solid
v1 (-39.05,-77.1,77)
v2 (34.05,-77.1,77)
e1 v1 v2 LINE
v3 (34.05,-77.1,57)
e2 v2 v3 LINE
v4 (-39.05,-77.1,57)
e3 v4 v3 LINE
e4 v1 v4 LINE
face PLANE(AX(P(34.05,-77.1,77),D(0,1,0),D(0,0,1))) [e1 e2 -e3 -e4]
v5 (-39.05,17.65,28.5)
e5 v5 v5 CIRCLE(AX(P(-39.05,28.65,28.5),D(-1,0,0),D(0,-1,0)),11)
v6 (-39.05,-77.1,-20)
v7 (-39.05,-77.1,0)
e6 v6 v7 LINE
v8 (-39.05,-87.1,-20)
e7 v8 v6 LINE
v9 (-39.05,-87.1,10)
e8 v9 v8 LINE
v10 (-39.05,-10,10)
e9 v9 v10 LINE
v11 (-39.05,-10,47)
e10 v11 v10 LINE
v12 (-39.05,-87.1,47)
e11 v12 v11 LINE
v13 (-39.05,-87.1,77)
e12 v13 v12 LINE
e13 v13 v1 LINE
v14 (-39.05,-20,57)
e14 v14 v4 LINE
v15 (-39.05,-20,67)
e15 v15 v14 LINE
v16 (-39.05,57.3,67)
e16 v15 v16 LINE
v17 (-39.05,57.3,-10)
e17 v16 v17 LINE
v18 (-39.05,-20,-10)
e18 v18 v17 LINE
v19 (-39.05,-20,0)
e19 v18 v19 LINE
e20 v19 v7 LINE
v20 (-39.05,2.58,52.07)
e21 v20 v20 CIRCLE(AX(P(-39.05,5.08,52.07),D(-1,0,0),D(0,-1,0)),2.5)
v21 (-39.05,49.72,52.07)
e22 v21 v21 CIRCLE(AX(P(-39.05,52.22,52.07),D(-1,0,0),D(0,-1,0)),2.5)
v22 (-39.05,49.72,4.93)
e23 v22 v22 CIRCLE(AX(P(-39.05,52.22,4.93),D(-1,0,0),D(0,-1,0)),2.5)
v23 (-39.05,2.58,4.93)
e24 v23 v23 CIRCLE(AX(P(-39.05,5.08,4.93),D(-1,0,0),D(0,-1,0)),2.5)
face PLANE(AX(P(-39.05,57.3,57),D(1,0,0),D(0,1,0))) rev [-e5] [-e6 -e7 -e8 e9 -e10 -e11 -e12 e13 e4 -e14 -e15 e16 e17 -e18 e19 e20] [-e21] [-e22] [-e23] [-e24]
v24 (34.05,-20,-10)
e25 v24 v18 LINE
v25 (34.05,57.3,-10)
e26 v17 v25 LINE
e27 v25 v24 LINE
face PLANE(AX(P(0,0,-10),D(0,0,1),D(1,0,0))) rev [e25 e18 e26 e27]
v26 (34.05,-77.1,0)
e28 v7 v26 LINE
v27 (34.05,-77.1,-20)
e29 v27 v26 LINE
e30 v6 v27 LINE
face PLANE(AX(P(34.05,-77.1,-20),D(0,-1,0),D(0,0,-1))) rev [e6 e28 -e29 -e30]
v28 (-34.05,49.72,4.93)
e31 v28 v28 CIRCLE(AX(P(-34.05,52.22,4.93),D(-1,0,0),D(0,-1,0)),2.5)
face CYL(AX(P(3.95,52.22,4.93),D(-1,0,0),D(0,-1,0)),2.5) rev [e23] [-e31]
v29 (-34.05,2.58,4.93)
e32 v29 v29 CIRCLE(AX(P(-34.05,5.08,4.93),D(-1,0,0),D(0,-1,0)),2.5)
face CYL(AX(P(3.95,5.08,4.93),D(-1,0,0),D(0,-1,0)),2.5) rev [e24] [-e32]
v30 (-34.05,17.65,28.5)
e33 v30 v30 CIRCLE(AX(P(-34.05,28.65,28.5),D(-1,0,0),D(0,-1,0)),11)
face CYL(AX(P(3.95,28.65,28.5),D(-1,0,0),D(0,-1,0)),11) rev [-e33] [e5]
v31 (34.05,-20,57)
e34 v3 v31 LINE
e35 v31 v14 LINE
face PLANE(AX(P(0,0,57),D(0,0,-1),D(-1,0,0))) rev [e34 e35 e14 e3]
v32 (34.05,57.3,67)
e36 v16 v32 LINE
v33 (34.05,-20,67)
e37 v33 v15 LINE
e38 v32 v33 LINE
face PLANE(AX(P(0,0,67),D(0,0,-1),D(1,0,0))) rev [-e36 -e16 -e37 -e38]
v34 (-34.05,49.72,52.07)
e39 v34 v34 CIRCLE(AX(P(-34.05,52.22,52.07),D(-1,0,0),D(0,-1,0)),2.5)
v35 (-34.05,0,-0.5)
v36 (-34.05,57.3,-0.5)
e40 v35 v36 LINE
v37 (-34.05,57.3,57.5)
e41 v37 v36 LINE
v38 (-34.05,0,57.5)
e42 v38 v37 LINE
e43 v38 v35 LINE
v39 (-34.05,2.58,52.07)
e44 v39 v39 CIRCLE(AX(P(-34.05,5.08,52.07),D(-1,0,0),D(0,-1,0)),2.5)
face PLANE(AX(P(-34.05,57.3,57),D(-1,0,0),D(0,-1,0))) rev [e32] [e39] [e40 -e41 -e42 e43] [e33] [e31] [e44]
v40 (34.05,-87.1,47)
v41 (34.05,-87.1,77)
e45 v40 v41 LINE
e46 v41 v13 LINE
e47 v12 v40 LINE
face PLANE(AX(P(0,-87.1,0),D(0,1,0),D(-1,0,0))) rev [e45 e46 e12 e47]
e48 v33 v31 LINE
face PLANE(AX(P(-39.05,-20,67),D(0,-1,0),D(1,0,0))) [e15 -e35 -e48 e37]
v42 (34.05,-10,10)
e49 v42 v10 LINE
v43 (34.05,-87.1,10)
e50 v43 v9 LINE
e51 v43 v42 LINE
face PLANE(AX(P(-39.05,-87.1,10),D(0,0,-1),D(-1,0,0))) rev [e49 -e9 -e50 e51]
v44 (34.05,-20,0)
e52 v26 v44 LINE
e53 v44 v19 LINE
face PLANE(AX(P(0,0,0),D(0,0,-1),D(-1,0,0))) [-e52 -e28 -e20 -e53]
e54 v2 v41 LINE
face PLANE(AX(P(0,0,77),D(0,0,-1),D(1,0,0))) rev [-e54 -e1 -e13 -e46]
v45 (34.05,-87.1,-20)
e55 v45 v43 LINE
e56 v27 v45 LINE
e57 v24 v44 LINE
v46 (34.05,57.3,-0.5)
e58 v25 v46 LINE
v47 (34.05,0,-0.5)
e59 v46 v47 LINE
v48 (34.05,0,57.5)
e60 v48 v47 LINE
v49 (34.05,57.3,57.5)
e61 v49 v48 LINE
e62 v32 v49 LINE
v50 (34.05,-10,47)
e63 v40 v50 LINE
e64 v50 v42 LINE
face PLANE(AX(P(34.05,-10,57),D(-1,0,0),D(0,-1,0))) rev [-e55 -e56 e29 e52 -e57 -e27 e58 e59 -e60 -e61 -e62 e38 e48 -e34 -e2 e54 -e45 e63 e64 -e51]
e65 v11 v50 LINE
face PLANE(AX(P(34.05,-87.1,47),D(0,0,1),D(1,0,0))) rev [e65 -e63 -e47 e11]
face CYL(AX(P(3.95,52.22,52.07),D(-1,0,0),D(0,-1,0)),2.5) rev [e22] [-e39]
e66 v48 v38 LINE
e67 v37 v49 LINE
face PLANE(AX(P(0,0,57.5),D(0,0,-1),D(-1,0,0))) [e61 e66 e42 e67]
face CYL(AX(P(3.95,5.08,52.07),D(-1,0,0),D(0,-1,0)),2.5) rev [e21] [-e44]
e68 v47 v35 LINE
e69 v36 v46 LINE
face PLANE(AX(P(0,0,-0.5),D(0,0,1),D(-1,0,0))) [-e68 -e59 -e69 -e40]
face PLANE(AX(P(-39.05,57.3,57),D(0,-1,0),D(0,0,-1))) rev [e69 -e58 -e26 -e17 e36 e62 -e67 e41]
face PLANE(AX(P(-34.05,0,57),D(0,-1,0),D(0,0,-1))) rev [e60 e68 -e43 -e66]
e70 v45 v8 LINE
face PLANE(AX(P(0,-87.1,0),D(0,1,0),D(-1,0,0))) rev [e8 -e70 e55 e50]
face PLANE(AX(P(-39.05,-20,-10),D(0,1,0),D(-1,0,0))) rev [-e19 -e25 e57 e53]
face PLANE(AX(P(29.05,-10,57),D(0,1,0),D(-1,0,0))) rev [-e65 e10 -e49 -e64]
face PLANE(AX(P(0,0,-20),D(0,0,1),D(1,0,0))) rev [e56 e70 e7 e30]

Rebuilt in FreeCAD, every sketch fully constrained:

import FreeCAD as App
import Part
import Sketcher
from FreeCAD import Vector
Q = App.Units.Quantity


def add_polygon(sketch, points):
    """Adds a closed chain of lines whose ends are joined by coincident constraints."""
    first, n = sketch.GeometryCount, len(points)
    for a, b in zip(points, points[1:] + points[:1]):
        sketch.addGeometry(Part.LineSegment(App.Vector(*a, 0), App.Vector(*b, 0)), False)
    for i in range(n):
        sketch.addConstraint(Sketcher.Constraint("Coincident", first + i, 2, first + (i + 1) % n, 1))

doc = App.newDocument("Part")
body = doc.addObject("PartDesign::Body", "Body")

sketch1 = body.newObject("Sketcher::SketchObject", "Sketch")
sketch1.AttachmentSupport = (doc.getObject("XY_Plane"), [""])
sketch1.MapMode = "FlatFace"
add_polygon(sketch1, [(34, 0), (-34, 0), (-34, 57), (-39, 57), (-39, -10), (34, -10)])
sketch1.addConstraint([
    Sketcher.Constraint("Horizontal", 0),
    Sketcher.Constraint("Vertical", 1),
    Sketcher.Constraint("Horizontal", 2),
    Sketcher.Constraint("Vertical", 3),
    Sketcher.Constraint("Horizontal", 4),
    Sketcher.Constraint("Vertical", 5),
    Sketcher.Constraint("Symmetric", 0, 2, 5, 2, -1, 1),
    Sketcher.Constraint("DistanceX", 2, 2, 2, 1, Q("5 mm")),
    Sketcher.Constraint("DistanceY", 5, 1, 5, 2, Q("10 mm")),
    Sketcher.Constraint("DistanceX", 0, 2, 0, 1, Q("68.1 mm")),
    Sketcher.Constraint("DistanceY", 1, 1, 1, 2, Q("57.3 mm")),
])
pad1 = body.newObject("PartDesign::Pad", "Pad")
pad1.Profile = sketch1
pad1.Length = 57

sketch2 = body.newObject("Sketcher::SketchObject", "Sketch001")
sketch2.AttachmentSupport = (doc.getObject("YZ_Plane"), [""])
sketch2.MapMode = "FlatFace"
sketch2.AttachmentOffset = App.Placement(Vector(0, 0, -39.05), App.Rotation())
sketch2.addGeometry([
    Part.Circle(Vector(28.6, 28.5, 0), Vector(0, 0, 1), 11),
    Part.Circle(Vector(52.2, 52.1, 0), Vector(0, 0, 1), 2.5),
    Part.Circle(Vector(52.2, 4.9, 0), Vector(0, 0, 1), 2.5),
    Part.Circle(Vector(5.1, 52.1, 0), Vector(0, 0, 1), 2.5),
    Part.Circle(Vector(5.1, 4.9, 0), Vector(0, 0, 1), 2.5),
], False)
sketch2.addConstraint([
    Sketcher.Constraint("Equal", 1, 2),
    Sketcher.Constraint("Equal", 2, 3),
    Sketcher.Constraint("Equal", 3, 4),
    Sketcher.Constraint("Horizontal", 1, 3, 3, 3),
    Sketcher.Constraint("Horizontal", 2, 3, 4, 3),
    Sketcher.Constraint("Vertical", 1, 3, 2, 3),
    Sketcher.Constraint("Vertical", 3, 3, 4, 3),
    Sketcher.Constraint("Diameter", 0, Q("22 mm")),
    Sketcher.Constraint("Diameter", 1, Q("5 mm")),
    Sketcher.Constraint("DistanceY", -1, 1, 0, 3, Q("28.5 mm")),
    Sketcher.Constraint("DistanceX", -1, 1, 0, 3, Q("28.65 mm")),
    Sketcher.Constraint("DistanceX", -1, 1, 1, 3, Q("52.22 mm")),
    Sketcher.Constraint("DistanceY", -1, 1, 1, 3, Q("52.07 mm")),
    Sketcher.Constraint("DistanceY", -1, 1, 2, 3, Q("4.93 mm")),
    Sketcher.Constraint("DistanceX", -1, 1, 3, 3, Q("5.08 mm")),
])
pocket1 = body.newObject("PartDesign::Pocket", "Pocket")
pocket1.Profile = sketch2
pocket1.Length = 43
pocket1.Reversed = True

sketch3 = body.newObject("Sketcher::SketchObject", "Sketch002")
sketch3.AttachmentSupport = (doc.getObject("XZ_Plane"), [""])
sketch3.MapMode = "FlatFace"
sketch3.AttachmentOffset = App.Placement(Vector(0, 0, 10), App.Rotation())
add_polygon(sketch3, [(-39, 10), (-39, 0), (34, 0), (34, 10)])
add_polygon(sketch3, [(-39, 57), (-39, 47), (34, 47), (34, 57)])
sketch3.addConstraint([
    Sketcher.Constraint("Vertical", 0),
    Sketcher.Constraint("Horizontal", 1),
    Sketcher.Constraint("Vertical", 2),
    Sketcher.Constraint("Horizontal", 3),
    Sketcher.Constraint("Vertical", 4),
    Sketcher.Constraint("Horizontal", 5),
    Sketcher.Constraint("Vertical", 6),
    Sketcher.Constraint("Horizontal", 7),
    Sketcher.Constraint("PointOnObject", 0, 2, -1),
    Sketcher.Constraint("Vertical", 3, 2, 4, 2),
    Sketcher.Constraint("Vertical", 2, 2, 5, 2),
    Sketcher.Constraint("Equal", 2, 4),
    Sketcher.Constraint("DistanceY", 0, 2, 0, 1, Q("10 mm")),
    Sketcher.Constraint("DistanceX", 1, 1, 1, 2, Q("73.1 mm")),
    Sketcher.Constraint("DistanceY", -1, 1, 4, 2, Q("47 mm")),
    Sketcher.Constraint("DistanceX", 0, 2, -1, 1, Q("39.05 mm")),
])
pad2 = body.newObject("PartDesign::Pad", "Pad001")
pad2.Profile = sketch3
pad2.Length = 77.1

sketch4 = body.newObject("Sketcher::SketchObject", "Sketch003")
sketch4.AttachmentSupport = (doc.getObject("XY_Plane"), [""])
sketch4.MapMode = "FlatFace"
add_polygon(sketch4, [(34, -77), (34, -87), (-39, -87), (-39, -77)])
sketch4.addConstraint([
    Sketcher.Constraint("Vertical", 0),
    Sketcher.Constraint("Horizontal", 1),
    Sketcher.Constraint("Vertical", 2),
    Sketcher.Constraint("Horizontal", 3),
    Sketcher.Constraint("DistanceY", 0, 2, 0, 1, Q("10 mm")),
    Sketcher.Constraint("DistanceX", 1, 2, 1, 1, Q("73.1 mm")),
    Sketcher.Constraint("DistanceY", 0, 2, -1, 1, Q("87.1 mm")),
    Sketcher.Constraint("DistanceX", -1, 1, 0, 2, Q("34.05 mm")),
])
pad3 = body.newObject("PartDesign::Pad", "Pad002")
pad3.Profile = sketch4
pad3.Length = 20
pad3.Reversed = True

sketch5 = body.newObject("Sketcher::SketchObject", "Sketch004")
sketch5.AttachmentSupport = (doc.getObject("XY_Plane"), [""])
sketch5.MapMode = "FlatFace"
add_polygon(sketch5, [(34, 57), (34, -20), (-39, -20), (-39, 57)])
sketch5.addConstraint([
    Sketcher.Constraint("Vertical", 0),
    Sketcher.Constraint("Horizontal", 1),
    Sketcher.Constraint("Vertical", 2),
    Sketcher.Constraint("Horizontal", 3),
    Sketcher.Constraint("DistanceX", 1, 2, 1, 1, Q("73.1 mm")),
    Sketcher.Constraint("DistanceY", 0, 2, 0, 1, Q("77.3 mm")),
    Sketcher.Constraint("DistanceY", 0, 2, -1, 1, Q("20 mm")),
    Sketcher.Constraint("DistanceX", -1, 1, 0, 2, Q("34.05 mm")),
])
pad4 = body.newObject("PartDesign::Pad", "Pad003")
pad4.Profile = sketch5
pad4.Length = 10
pad4.Reversed = True
doc.recompute()

datumplane = body.newObject("PartDesign::Plane", "DatumPlane")
datumplane.AttachmentSupport = (doc.getObject("XY_Plane"), [""])
datumplane.MapMode = "FlatFace"
datumplane.AttachmentOffset = App.Placement(Vector(0, 0, 28.5), App.Rotation())
mirrored = body.newObject("PartDesign::Mirrored", "Mirrored")
mirrored.Originals = [pad4]
mirrored.MirrorPlane = (datumplane, [""])
body.Tip = mirrored
doc.recompute()

datumplane2 = body.newObject("PartDesign::Plane", "DatumPlane001")
datumplane2.AttachmentSupport = (doc.getObject("XY_Plane"), [""])
datumplane2.MapMode = "FlatFace"
datumplane2.AttachmentOffset = App.Placement(Vector(0, 0, 28.5), App.Rotation())
mirrored2 = body.newObject("PartDesign::Mirrored", "Mirrored001")
mirrored2.Originals = [pad3]
mirrored2.MirrorPlane = (datumplane2, [""])
body.Tip = mirrored2

sketch6 = body.newObject("Sketcher::SketchObject", "Sketch005")
sketch6.AttachmentSupport = (doc.getObject("XY_Plane"), [""])
sketch6.MapMode = "FlatFace"
sketch6.AttachmentOffset = App.Placement(Vector(0, 0, 57), App.Rotation())
add_polygon(sketch6, [(34, 57), (34, 0), (-34, 0), (-34, 57)])
sketch6.addConstraint([
    Sketcher.Constraint("Vertical", 0),
    Sketcher.Constraint("Horizontal", 1),
    Sketcher.Constraint("Vertical", 2),
    Sketcher.Constraint("Horizontal", 3),
    Sketcher.Constraint("Symmetric", 0, 2, 1, 2, -1, 1),
    Sketcher.Constraint("DistanceX", 1, 2, 1, 1, Q("68.1 mm")),
    Sketcher.Constraint("DistanceY", 0, 2, 0, 1, Q("57.3 mm")),
])
pocket2 = body.newObject("PartDesign::Pocket", "Pocket001")
pocket2.Profile = sketch6
pocket2.Length = 0.5
pocket2.Reversed = True
doc.recompute()

datumplane3 = body.newObject("PartDesign::Plane", "DatumPlane002")
datumplane3.AttachmentSupport = (doc.getObject("XY_Plane"), [""])
datumplane3.MapMode = "FlatFace"
datumplane3.AttachmentOffset = App.Placement(Vector(0, 0, 28.5), App.Rotation())
mirrored3 = body.newObject("PartDesign::Mirrored", "Mirrored002")
mirrored3.Originals = [pocket2]
mirrored3.MirrorPlane = (datumplane3, [""])
body.Tip = mirrored3

doc.recompute()
